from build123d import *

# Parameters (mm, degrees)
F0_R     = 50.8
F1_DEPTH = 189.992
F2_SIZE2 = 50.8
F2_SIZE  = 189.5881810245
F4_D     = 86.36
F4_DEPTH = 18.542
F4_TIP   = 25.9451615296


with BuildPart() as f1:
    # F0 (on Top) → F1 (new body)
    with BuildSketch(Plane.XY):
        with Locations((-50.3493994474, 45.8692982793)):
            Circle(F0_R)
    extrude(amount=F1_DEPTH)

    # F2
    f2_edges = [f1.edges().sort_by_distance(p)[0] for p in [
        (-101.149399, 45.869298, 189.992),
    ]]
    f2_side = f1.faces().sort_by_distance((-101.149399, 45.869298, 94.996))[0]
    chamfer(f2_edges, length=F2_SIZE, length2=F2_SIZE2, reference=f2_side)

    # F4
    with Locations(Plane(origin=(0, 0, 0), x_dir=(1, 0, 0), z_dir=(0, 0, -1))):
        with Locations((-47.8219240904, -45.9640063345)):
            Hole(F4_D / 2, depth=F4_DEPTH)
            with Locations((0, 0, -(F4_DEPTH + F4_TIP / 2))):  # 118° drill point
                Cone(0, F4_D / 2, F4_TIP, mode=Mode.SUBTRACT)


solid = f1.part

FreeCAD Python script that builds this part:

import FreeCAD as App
import Part
import Sketcher

V = App.Vector
Q = App.Units.Quantity


def edges_at(feature, points):
    """Names of the edges that pass closest to the given points."""
    edges = feature.Shape.Edges
    near = lambda p: min(range(len(edges)), key=lambda i: edges[i].distToShape(Part.Vertex(*p))[0])
    return sorted({f"Edge{near(p) + 1}" for p in points})

doc = App.newDocument("Part")
params = doc.addObject("Spreadsheet::Sheet", "Params")
for row, (alias, value) in enumerate([
    ("sketch1_diameter", "4 in"),
    ("pad1_length", "7.48 in"),
    ("chamfer_size", "189.588181 mm"),
    ("chamfer_size2", "2 in"),
    ("sketch2_diameter", "3.4 in"),
    ("hole_diameter", "3.4 in"),
    ("hole_depth", "0.73 in"),
], start=1):
    params.set(f"A{row}", alias)
    params.set(f"B{row}", "=" + value)
    params.setAlias(f"B{row}", alias)

body = doc.addObject("PartDesign::Body", "Body")

sketch1 = body.newObject("Sketcher::SketchObject", "Sketch")
sketch1.AttachmentSupport = (doc.getObject("XY_Plane"), [""])
sketch1.MapMode = "FlatFace"
sketch1.addGeometry(Part.Circle(V(-50, 46, 0), V(0, 0, 1), 51), False)
sketch1.addConstraint([
    Sketcher.Constraint("Diameter", 0, Q("4 in")),
    Sketcher.Constraint("DistanceX", 0, 3, -1, 1, Q("50.349399 mm")),
    Sketcher.Constraint("DistanceY", -1, 1, 0, 3, Q("45.869298 mm")),
])
sketch1.setExpression("Constraints[0]", "Params.sketch1_diameter")
pad1 = body.newObject("PartDesign::Pad", "Pad")
pad1.Profile = sketch1
pad1.setExpression("Length", "Params.pad1_length")
doc.recompute()

chamfer = body.newObject("PartDesign::Chamfer", "Chamfer")
chamfer.Base = (pad1, edges_at(pad1, [(-101.149, 45.869, 189.992)]))
chamfer.ChamferType = "Two distances"
chamfer.setExpression("Size", "Params.chamfer_size")
chamfer.setExpression("Size2", "Params.chamfer_size2")

sketch2 = body.newObject("Sketcher::SketchObject", "Sketch001")
sketch2.AttachmentSupport = (doc.getObject("XY_Plane"), [""])
sketch2.MapMode = "FlatFace"
sketch2.addGeometry(Part.Circle(V(-48, 46, 0), V(0, 0, 1), 43), False)
sketch2.addConstraint([
    Sketcher.Constraint("Diameter", 0, Q("3.4 in")),
    Sketcher.Constraint("DistanceX", 0, 3, -1, 1, Q("47.821924 mm")),
    Sketcher.Constraint("DistanceY", -1, 1, 0, 3, Q("45.964006 mm")),
])
sketch2.setExpression("Constraints[0]", "Params.sketch2_diameter")
doc.recompute()
hole = body.newObject("PartDesign::Hole", "Hole")
hole.Profile = sketch2
hole.ThreadType = "None"
hole.setExpression("Diameter", "Params.hole_diameter")
hole.DepthType = "Dimension"
hole.setExpression("Depth", "Params.hole_depth")
hole.DrillPoint = "Angled"
hole.DrillPointAngle = 118
hole.Reversed = True

doc.recompute()
